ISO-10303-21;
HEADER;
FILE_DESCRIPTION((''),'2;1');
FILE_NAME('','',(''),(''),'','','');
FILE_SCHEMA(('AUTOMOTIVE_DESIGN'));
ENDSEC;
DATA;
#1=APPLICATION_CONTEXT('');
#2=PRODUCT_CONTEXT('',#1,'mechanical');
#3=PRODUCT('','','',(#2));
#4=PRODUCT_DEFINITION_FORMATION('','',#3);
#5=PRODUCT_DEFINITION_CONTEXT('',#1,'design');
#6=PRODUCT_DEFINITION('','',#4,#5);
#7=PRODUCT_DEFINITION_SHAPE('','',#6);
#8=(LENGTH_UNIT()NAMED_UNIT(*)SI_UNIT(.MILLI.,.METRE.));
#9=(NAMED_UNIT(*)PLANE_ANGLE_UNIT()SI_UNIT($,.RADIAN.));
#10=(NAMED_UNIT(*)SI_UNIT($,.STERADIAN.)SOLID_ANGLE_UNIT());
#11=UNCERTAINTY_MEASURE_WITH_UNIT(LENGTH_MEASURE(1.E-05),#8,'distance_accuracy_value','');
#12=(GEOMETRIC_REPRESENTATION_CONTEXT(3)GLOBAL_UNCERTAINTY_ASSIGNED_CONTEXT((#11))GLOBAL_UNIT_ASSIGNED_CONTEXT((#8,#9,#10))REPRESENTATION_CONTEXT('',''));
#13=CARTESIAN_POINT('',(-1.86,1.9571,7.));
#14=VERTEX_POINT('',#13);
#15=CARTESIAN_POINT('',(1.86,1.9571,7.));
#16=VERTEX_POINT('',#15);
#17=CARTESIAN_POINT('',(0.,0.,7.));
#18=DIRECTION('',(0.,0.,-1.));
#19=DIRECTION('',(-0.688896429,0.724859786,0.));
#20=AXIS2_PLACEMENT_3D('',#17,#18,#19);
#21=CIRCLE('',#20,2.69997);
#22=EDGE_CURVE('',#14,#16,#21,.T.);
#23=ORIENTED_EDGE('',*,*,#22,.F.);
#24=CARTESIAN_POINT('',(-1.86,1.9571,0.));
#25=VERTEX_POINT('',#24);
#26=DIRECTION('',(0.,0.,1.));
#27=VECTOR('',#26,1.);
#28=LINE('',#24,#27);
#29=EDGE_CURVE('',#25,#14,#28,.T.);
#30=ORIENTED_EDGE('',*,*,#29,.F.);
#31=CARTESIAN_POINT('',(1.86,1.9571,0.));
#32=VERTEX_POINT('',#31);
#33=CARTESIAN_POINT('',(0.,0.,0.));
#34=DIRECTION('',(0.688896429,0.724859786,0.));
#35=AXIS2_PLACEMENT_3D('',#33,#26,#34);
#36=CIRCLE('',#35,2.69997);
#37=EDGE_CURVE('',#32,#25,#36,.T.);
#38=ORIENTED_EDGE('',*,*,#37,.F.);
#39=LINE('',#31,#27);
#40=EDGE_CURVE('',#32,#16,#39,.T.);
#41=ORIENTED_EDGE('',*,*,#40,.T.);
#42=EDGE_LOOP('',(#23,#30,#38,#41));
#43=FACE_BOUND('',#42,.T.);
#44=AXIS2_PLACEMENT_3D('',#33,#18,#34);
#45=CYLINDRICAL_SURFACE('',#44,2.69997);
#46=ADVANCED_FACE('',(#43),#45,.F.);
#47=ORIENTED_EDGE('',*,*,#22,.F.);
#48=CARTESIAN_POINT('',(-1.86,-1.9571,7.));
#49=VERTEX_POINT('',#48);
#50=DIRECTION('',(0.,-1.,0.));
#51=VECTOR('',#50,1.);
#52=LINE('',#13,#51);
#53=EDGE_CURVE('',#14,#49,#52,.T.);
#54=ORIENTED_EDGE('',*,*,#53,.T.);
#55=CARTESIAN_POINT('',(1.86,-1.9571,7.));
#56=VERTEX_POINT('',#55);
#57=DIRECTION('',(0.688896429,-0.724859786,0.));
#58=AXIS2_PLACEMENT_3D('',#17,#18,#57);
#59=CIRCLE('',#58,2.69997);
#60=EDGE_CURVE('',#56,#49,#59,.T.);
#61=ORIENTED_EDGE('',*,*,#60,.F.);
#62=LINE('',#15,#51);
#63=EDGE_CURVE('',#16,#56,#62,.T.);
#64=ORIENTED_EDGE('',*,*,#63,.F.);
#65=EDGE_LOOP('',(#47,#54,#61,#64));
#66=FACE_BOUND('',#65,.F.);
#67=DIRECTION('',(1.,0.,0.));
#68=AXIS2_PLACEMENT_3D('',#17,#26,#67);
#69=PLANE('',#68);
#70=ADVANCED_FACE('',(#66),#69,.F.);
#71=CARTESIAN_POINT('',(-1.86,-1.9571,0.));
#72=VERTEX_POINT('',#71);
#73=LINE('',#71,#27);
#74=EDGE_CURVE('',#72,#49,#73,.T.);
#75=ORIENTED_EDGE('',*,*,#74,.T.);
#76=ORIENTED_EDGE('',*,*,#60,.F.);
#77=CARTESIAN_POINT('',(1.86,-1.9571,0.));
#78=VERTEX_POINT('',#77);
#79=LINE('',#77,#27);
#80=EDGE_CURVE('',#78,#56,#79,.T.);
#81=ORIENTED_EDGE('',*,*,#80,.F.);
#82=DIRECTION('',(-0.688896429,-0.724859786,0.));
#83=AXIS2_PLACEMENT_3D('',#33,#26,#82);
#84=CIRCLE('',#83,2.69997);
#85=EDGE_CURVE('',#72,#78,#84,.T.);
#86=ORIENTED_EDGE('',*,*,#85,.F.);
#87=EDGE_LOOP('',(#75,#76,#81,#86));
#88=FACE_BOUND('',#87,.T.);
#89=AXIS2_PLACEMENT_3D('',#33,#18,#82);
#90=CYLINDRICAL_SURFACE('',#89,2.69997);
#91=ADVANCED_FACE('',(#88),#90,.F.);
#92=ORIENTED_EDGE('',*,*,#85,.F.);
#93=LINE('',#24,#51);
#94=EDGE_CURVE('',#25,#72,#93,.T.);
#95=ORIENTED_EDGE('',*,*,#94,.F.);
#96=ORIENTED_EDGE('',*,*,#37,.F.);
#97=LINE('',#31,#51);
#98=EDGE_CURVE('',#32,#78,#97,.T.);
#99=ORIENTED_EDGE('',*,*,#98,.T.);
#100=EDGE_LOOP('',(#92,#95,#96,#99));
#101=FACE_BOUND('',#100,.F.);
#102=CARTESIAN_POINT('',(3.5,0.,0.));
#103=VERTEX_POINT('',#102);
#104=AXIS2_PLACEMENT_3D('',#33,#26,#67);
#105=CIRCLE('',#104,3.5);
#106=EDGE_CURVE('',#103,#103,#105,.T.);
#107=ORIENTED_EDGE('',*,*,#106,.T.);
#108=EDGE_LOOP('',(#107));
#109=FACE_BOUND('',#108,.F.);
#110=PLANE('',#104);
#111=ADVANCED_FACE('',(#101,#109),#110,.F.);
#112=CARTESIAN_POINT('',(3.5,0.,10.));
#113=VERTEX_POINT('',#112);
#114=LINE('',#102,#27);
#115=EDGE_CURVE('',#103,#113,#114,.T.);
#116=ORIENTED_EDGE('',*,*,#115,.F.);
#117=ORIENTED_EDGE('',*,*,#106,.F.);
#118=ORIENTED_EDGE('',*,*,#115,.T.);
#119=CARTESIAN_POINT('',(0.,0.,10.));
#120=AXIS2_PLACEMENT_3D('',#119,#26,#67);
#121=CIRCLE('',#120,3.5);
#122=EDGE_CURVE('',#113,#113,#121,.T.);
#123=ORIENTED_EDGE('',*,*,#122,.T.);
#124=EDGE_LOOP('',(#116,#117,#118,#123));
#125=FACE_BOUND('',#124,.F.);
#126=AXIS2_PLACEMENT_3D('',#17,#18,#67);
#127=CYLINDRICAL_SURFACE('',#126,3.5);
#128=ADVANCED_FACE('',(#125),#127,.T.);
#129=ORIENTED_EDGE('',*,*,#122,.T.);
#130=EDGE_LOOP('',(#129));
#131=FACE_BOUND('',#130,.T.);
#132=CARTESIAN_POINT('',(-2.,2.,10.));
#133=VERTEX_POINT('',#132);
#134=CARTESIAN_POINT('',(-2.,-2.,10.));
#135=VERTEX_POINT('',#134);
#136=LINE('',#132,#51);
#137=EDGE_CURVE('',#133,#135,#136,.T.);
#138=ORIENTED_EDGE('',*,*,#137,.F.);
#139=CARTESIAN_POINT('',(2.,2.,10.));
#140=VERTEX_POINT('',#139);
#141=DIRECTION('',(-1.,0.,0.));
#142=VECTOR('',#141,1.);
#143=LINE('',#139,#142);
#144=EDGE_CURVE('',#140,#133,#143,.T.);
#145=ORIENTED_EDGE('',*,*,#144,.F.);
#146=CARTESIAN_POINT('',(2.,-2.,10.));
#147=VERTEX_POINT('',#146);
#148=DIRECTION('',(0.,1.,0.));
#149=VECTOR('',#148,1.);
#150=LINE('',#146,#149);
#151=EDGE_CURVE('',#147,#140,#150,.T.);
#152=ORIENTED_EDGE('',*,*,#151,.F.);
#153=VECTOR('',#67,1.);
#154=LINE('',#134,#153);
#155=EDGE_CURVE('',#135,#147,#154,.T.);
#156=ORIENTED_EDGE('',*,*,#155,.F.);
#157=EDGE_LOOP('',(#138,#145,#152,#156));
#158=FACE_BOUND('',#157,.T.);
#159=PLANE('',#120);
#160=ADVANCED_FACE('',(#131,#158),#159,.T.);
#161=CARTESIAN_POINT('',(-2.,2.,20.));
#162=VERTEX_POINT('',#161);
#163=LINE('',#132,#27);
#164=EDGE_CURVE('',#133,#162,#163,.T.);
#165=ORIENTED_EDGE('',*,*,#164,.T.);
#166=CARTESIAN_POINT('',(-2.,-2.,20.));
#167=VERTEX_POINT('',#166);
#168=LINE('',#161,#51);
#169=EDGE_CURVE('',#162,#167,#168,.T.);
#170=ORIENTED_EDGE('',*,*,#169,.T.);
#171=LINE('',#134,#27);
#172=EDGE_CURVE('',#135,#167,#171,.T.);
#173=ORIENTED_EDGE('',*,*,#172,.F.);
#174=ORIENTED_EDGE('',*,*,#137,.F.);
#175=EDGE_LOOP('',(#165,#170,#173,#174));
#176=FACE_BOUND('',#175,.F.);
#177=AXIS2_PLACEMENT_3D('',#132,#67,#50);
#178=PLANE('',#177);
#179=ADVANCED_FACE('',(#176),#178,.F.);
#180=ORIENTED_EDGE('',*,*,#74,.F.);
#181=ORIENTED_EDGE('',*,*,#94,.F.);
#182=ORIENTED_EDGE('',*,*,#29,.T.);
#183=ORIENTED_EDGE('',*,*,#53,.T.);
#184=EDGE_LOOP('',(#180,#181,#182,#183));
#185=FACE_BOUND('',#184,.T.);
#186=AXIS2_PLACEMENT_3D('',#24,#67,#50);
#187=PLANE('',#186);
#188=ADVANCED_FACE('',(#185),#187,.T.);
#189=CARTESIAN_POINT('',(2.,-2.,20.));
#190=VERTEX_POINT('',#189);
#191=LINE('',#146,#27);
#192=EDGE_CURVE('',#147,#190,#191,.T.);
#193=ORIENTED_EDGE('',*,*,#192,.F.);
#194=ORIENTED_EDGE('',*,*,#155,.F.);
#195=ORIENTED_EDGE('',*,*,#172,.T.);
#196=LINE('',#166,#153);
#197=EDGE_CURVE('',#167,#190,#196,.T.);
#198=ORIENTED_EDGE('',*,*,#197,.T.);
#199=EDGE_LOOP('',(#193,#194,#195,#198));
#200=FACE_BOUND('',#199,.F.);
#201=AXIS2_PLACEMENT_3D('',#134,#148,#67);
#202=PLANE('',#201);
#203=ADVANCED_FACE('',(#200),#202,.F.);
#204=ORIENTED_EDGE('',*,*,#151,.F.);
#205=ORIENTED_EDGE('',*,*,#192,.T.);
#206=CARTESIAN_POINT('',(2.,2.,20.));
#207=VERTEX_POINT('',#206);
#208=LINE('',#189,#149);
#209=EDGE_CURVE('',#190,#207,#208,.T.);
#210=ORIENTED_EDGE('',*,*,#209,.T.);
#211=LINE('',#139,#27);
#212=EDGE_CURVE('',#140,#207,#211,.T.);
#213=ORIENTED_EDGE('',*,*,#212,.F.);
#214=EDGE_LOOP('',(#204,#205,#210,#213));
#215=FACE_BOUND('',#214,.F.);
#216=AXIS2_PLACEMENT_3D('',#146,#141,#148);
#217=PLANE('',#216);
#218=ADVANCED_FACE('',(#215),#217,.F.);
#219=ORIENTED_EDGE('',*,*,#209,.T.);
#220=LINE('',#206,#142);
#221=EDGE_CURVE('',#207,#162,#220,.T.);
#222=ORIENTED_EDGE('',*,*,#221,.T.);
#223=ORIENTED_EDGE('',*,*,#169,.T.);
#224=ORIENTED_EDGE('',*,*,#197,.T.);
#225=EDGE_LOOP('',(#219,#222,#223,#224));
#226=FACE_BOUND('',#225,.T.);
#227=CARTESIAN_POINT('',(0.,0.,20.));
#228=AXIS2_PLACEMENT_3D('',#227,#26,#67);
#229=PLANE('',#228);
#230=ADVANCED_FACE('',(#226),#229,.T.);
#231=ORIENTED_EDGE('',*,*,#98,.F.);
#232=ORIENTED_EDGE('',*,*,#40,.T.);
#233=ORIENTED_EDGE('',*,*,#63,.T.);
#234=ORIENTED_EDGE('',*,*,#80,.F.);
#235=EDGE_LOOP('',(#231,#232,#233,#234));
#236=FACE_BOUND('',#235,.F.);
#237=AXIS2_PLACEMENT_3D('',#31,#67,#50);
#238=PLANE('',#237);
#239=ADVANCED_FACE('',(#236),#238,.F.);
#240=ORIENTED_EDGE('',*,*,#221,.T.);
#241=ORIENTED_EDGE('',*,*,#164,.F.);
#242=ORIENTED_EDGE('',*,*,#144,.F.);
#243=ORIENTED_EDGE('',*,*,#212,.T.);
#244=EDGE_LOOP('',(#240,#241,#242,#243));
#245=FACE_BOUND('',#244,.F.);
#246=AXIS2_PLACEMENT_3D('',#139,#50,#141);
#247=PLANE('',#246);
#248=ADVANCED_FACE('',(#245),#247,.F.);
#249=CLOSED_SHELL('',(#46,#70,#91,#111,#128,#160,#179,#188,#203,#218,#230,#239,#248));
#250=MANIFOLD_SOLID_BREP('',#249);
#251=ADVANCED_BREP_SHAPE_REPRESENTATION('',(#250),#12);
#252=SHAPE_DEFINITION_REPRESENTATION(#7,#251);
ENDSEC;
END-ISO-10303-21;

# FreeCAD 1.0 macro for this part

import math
import FreeCAD as App
import Part
import Sketcher
from FreeCAD import Vector
Q = App.Units.Quantity

doc = App.newDocument("Part")
params = doc.addObject("Spreadsheet::Sheet", "Params")
for row, (alias, value) in enumerate([
    ("sketch1_diameter", "7 mm"),
    ("sketch1_radius", "2.7 mm"),
    ("pad1_length", "7 mm"),
    ("sketch2_diameter", "7 mm"),
    ("pad2_length", "3 mm"),
    ("sketch3_width", "4 mm"),
    ("pad3_length", "10 mm"),
], start=1):
    params.set(f"A{row}", alias)
    params.set(f"B{row}", "=" + value)
    params.setAlias(f"B{row}", alias)

body = doc.addObject("PartDesign::Body", "Body")

# Sketch on XY plane
sketch1 = body.newObject("Sketcher::SketchObject", "Sketch")
sketch1.AttachmentSupport = (doc.getObject("XY_Plane"), [""])
sketch1.MapMode = "FlatFace"
sketch1.addGeometry(Part.Circle(Vector(0, 0, 0), Vector(0, 0, 1), 3.5), False)
sketch1.addGeometry(Part.ArcOfCircle(Part.Circle(Vector(0, 0, 0), Vector(0, 0, 1), 2.69997), math.radians(-133.542815), math.radians(-46.457185)), False)
sketch1.addGeometry(Part.LineSegment(Vector(-1.86, -1.9571, 0), Vector(-1.86, 1.9571, 0)), False)
sketch1.addGeometry(Part.ArcOfCircle(Part.Circle(Vector(0, 0, 0), Vector(0, 0, 1), 2.69997), math.radians(46.457185), math.radians(133.542815)), False)
sketch1.addGeometry(Part.LineSegment(Vector(1.86, 1.9571, 0), Vector(1.86, -1.9571, 0)), False)
sketch1.addConstraint(Sketcher.Constraint("Coincident", 1, 1, 2, 1))
sketch1.addConstraint(Sketcher.Constraint("Coincident", 2, 2, 3, 2))
sketch1.addConstraint(Sketcher.Constraint("Coincident", 3, 1, 4, 1))
sketch1.addConstraint(Sketcher.Constraint("Coincident", 4, 2, 1, 2))
sketch1.addConstraint(Sketcher.Constraint("Vertical", 2))
sketch1.addConstraint(Sketcher.Constraint("Vertical", 4))
sketch1.addConstraint(Sketcher.Constraint("Coincident", 0, 3, -1, 1))
sketch1.addConstraint(Sketcher.Constraint("Coincident", 1, 3, -1, 1))
sketch1.addConstraint(Sketcher.Constraint("Coincident", 3, 3, -1, 1))
sketch1.addConstraint(Sketcher.Constraint("Equal", 1, 3))
sketch1.addConstraint(Sketcher.Constraint("Horizontal", 2, 2, 3, 1))
sketch1.addConstraint(Sketcher.Constraint("Diameter", 0, Q("7 mm")))
sketch1.addConstraint(Sketcher.Constraint("Radius", 1, Q("2.7 mm")))
sketch1.addConstraint(Sketcher.Constraint("DistanceX", 2, 2, 3, 1, Q("3.72 mm")))
sketch1.setExpression("Constraints[11]", "Params.sketch1_diameter")
sketch1.setExpression("Constraints[12]", "Params.sketch1_radius")
pad1 = body.newObject("PartDesign::Pad", "Pad")
pad1.Profile = sketch1
pad1.setExpression("Length", "Params.pad1_length")

# Sketch on XY plane
sketch2 = body.newObject("Sketcher::SketchObject", "Sketch001")
sketch2.AttachmentSupport = (doc.getObject("XY_Plane"), [""])
sketch2.MapMode = "FlatFace"
sketch2.AttachmentOffset = App.Placement(Vector(0, 0, 7), App.Rotation())
sketch2.addGeometry(Part.Circle(Vector(0, 0, 0), Vector(0, 0, 1), 3.5), False)
sketch2.addConstraint(Sketcher.Constraint("Coincident", 0, 3, -1, 1))
sketch2.addConstraint(Sketcher.Constraint("Diameter", 0, Q("7 mm")))
sketch2.setExpression("Constraints[1]", "Params.sketch2_diameter")
pad2 = body.newObject("PartDesign::Pad", "Pad001")
pad2.Profile = sketch2
pad2.setExpression("Length", "Params.pad2_length")

# Sketch on XY plane
sketch3 = body.newObject("Sketcher::SketchObject", "Sketch002")
sketch3.AttachmentSupport = (doc.getObject("XY_Plane"), [""])
sketch3.MapMode = "FlatFace"
sketch3.AttachmentOffset = App.Placement(Vector(0, 0, 10), App.Rotation())
sketch3.addGeometry(Part.LineSegment(Vector(-2, 2, 0), Vector(-2, -2, 0)), False)
sketch3.addGeometry(Part.LineSegment(Vector(-2, -2, 0), Vector(2, -2, 0)), False)
sketch3.addGeometry(Part.LineSegment(Vector(2, -2, 0), Vector(2, 2, 0)), False)
sketch3.addGeometry(Part.LineSegment(Vector(2, 2, 0), Vector(-2, 2, 0)), False)
sketch3.addConstraint(Sketcher.Constraint("Coincident", 0, 2, 1, 1))
sketch3.addConstraint(Sketcher.Constraint("Coincident", 1, 2, 2, 1))
sketch3.addConstraint(Sketcher.Constraint("Coincident", 2, 2, 3, 1))
sketch3.addConstraint(Sketcher.Constraint("Coincident", 3, 2, 0, 1))
sketch3.addConstraint(Sketcher.Constraint("Vertical", 0))
sketch3.addConstraint(Sketcher.Constraint("Horizontal", 1))
sketch3.addConstraint(Sketcher.Constraint("Vertical", 2))
sketch3.addConstraint(Sketcher.Constraint("Horizontal", 3))
sketch3.addConstraint(Sketcher.Constraint("Symmetric", 0, 2, 2, 2, -1, 1))
sketch3.addConstraint(Sketcher.Constraint("Equal", 3, 0))
sketch3.addConstraint(Sketcher.Constraint("DistanceX", 1, 1, 1, 2, Q("4 mm")))
sketch3.setExpression("Constraints[10]", "Params.sketch3_width")
pad3 = body.newObject("PartDesign::Pad", "Pad002")
pad3.Profile = sketch3
pad3.setExpression("Length", "Params.pad3_length")

doc.recompute()
